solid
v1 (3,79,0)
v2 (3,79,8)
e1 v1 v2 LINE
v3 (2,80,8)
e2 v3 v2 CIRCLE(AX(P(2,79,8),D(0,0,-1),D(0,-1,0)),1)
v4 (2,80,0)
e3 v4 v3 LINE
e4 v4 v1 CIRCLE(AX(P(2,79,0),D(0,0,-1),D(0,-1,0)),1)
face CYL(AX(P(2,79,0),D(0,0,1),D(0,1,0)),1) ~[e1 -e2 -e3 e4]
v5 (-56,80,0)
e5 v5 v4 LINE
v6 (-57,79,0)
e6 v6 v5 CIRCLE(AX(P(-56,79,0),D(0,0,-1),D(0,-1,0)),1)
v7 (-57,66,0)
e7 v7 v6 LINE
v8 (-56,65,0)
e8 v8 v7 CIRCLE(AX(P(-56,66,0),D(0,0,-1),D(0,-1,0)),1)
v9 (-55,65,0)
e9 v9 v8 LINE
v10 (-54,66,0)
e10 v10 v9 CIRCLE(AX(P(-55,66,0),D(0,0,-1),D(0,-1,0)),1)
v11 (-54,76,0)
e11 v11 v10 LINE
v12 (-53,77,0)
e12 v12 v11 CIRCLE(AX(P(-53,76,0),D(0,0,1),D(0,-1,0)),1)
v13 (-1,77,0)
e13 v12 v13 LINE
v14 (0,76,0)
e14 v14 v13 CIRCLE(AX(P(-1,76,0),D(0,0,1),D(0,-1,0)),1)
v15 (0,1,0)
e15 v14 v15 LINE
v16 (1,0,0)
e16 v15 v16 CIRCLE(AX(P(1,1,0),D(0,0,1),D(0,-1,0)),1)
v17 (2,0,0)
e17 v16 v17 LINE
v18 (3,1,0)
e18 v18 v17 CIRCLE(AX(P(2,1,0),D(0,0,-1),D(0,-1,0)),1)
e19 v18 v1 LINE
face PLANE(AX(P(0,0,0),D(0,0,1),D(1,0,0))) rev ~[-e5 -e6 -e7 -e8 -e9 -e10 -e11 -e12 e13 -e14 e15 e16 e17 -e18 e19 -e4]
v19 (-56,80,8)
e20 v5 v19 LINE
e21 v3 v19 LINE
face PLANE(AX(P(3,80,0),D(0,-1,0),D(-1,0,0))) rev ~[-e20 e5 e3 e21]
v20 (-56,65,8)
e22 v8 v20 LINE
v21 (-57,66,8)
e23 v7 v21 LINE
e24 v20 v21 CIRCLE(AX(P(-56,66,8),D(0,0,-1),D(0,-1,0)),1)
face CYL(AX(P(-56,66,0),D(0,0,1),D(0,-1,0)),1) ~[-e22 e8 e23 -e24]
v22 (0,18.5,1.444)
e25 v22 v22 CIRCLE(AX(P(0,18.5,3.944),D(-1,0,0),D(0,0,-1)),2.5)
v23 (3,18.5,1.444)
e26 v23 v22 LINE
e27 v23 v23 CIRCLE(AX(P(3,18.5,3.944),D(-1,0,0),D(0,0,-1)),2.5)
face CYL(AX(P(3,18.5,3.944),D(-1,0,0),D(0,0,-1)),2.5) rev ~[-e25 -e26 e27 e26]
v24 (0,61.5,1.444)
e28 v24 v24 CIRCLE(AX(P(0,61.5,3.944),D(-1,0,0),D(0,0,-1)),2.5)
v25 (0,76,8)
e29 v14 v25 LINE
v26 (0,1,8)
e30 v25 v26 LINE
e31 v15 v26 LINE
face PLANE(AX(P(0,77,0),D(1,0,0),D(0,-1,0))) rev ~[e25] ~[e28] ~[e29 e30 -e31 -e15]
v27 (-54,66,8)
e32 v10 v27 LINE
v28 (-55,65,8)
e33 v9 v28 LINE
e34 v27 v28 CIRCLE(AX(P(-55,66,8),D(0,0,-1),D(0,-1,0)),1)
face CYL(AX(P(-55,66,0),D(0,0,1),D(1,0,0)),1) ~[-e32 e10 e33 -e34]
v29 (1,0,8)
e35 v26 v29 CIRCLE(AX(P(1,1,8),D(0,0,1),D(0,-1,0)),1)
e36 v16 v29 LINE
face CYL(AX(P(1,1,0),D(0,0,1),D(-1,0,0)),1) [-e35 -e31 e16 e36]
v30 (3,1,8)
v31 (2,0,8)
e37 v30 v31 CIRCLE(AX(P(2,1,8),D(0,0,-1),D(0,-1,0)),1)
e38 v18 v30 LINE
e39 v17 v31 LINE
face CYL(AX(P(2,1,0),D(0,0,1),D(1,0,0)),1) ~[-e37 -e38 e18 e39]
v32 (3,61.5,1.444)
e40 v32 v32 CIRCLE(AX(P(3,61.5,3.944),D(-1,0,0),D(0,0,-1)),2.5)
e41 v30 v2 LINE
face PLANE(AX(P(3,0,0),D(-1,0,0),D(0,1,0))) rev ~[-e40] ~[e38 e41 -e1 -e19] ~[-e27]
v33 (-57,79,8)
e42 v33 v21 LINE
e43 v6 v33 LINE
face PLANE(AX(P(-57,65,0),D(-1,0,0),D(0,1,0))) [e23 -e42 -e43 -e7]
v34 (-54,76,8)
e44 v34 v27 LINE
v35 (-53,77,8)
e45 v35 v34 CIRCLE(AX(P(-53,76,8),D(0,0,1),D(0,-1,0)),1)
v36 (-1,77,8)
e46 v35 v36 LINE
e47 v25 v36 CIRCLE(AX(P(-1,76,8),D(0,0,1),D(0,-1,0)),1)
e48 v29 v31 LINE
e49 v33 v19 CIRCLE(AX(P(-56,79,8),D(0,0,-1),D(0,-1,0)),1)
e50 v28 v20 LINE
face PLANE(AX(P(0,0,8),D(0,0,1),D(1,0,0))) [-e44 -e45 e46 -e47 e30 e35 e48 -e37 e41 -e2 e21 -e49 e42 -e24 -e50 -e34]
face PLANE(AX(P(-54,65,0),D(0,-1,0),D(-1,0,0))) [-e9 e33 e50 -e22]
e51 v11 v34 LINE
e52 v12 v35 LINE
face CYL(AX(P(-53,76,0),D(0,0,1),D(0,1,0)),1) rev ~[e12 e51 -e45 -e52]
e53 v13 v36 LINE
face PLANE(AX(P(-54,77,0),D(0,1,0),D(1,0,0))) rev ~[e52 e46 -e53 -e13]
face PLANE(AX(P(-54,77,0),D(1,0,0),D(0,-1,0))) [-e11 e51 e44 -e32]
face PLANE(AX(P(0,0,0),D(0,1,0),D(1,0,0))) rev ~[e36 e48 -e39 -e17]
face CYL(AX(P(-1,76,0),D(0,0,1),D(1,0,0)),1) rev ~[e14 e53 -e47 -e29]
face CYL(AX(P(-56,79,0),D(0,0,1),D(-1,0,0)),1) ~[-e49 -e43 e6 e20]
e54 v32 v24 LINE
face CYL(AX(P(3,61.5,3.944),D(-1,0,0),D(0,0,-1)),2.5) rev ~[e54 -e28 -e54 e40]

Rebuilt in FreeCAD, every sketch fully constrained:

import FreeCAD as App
import Part
import Sketcher

V = App.Vector


def edges_at(feature, points):
    """Names of the edges that pass closest to the given points."""
    edges = feature.Shape.Edges
    near = lambda p: min(range(len(edges)), key=lambda i: edges[i].distToShape(Part.Vertex(*p))[0])
    return sorted({f"Edge{near(p) + 1}" for p in points})


def add_polygon(sketch, points):
    """Adds a closed chain of lines whose ends are joined by coincident constraints."""
    first, n = sketch.GeometryCount, len(points)
    for a, b in zip(points, points[1:] + points[:1]):
        sketch.addGeometry(Part.LineSegment(App.Vector(*a, 0), App.Vector(*b, 0)), False)
    for i in range(n):
        sketch.addConstraint(Sketcher.Constraint("Coincident", first + i, 2, first + (i + 1) % n, 1))

doc = App.newDocument("Part")
body = doc.addObject("PartDesign::Body", "Body")

# Sketch on XY plane
sketch1 = body.newObject("Sketcher::SketchObject", "Sketch")
sketch1.AttachmentSupport = (doc.getObject("XY_Plane"), [""])
sketch1.MapMode = "FlatFace"
add_polygon(sketch1, [(0, 77), (0, 0), (3, 0), (3, 80), (-57, 80), (-57, 65), (-54, 65), (-54, 77)])  # lines 0-7
sketch1.addConstraint([
    Sketcher.Constraint("Vertical", 0),
    Sketcher.Constraint("Horizontal", 1),
    Sketcher.Constraint("Vertical", 2),
    Sketcher.Constraint("Horizontal", 3),
    Sketcher.Constraint("Vertical", 4),
    Sketcher.Constraint("Horizontal", 5),
    Sketcher.Constraint("Vertical", 6),
    Sketcher.Constraint("Horizontal", 7),
    Sketcher.Constraint("Coincident", 0, 2, -1, 1),
    Sketcher.Constraint("Equal", 1, 5),
    Sketcher.Constraint("DistanceX", 1, 1, 1, 2, 3.0),
    Sketcher.Constraint("DistanceX", 3, 2, 3, 1, 60.0),
    Sketcher.Constraint("DistanceY", 2, 1, 2, 2, 80.0),
    Sketcher.Constraint("DistanceY", 4, 2, 4, 1, 15.0),
    Sketcher.Constraint("DistanceY", 6, 2, 3, 2, 3.0),
])
pad1 = body.newObject("PartDesign::Pad", "Pad")
pad1.Profile = sketch1
pad1.Length = 8
doc.recompute()

fillet = body.newObject("PartDesign::Fillet", "Fillet")
fillet.Base = (pad1, edges_at(pad1, [
    (0, 77, 4),
    (-54, 77, 4),
    (-54, 65, 4),
    (-57, 65, 4),
    (-57, 80, 4),
    (3, 80, 4),
    (3, 0, 4),
    (0, 0, 4),
]))
fillet.Radius = 1

# Sketch on YZ plane
sketch2 = body.newObject("Sketcher::SketchObject", "Sketch001")
sketch2.AttachmentSupport = (doc.getObject("YZ_Plane"), [""])
sketch2.MapMode = "FlatFace"
sketch2.AttachmentOffset = App.Placement(V(0, 0, 3), App.Rotation())
sketch2.addGeometry([
    Part.Circle(V(61.5, 3.9, 0), V(0, 0, 1), 2.5),
    Part.Circle(V(18.5, 3.9, 0), V(0, 0, 1), 2.5),
], False)
sketch2.addConstraint([
    Sketcher.Constraint("Equal", 0, 1),
    Sketcher.Constraint("Horizontal", 0, 3, 1, 3),
    Sketcher.Constraint("Diameter", 0, 5.0),
    Sketcher.Constraint("DistanceX", 1, 3, 0, 3, 43.0),
    Sketcher.Constraint("DistanceX", -1, 1, 0, 3, 61.5),
    Sketcher.Constraint("DistanceY", -1, 1, 0, 3, 3.944),
])
doc.recompute()
hole = body.newObject("PartDesign::Hole", "Hole")
hole.Profile = sketch2
hole.ThreadType = "None"
hole.Diameter = 5
hole.DepthType = "Dimension"
hole.Depth = 3
hole.DrillPoint = "Angled"
hole.DrillPointAngle = 118

doc.recompute()
